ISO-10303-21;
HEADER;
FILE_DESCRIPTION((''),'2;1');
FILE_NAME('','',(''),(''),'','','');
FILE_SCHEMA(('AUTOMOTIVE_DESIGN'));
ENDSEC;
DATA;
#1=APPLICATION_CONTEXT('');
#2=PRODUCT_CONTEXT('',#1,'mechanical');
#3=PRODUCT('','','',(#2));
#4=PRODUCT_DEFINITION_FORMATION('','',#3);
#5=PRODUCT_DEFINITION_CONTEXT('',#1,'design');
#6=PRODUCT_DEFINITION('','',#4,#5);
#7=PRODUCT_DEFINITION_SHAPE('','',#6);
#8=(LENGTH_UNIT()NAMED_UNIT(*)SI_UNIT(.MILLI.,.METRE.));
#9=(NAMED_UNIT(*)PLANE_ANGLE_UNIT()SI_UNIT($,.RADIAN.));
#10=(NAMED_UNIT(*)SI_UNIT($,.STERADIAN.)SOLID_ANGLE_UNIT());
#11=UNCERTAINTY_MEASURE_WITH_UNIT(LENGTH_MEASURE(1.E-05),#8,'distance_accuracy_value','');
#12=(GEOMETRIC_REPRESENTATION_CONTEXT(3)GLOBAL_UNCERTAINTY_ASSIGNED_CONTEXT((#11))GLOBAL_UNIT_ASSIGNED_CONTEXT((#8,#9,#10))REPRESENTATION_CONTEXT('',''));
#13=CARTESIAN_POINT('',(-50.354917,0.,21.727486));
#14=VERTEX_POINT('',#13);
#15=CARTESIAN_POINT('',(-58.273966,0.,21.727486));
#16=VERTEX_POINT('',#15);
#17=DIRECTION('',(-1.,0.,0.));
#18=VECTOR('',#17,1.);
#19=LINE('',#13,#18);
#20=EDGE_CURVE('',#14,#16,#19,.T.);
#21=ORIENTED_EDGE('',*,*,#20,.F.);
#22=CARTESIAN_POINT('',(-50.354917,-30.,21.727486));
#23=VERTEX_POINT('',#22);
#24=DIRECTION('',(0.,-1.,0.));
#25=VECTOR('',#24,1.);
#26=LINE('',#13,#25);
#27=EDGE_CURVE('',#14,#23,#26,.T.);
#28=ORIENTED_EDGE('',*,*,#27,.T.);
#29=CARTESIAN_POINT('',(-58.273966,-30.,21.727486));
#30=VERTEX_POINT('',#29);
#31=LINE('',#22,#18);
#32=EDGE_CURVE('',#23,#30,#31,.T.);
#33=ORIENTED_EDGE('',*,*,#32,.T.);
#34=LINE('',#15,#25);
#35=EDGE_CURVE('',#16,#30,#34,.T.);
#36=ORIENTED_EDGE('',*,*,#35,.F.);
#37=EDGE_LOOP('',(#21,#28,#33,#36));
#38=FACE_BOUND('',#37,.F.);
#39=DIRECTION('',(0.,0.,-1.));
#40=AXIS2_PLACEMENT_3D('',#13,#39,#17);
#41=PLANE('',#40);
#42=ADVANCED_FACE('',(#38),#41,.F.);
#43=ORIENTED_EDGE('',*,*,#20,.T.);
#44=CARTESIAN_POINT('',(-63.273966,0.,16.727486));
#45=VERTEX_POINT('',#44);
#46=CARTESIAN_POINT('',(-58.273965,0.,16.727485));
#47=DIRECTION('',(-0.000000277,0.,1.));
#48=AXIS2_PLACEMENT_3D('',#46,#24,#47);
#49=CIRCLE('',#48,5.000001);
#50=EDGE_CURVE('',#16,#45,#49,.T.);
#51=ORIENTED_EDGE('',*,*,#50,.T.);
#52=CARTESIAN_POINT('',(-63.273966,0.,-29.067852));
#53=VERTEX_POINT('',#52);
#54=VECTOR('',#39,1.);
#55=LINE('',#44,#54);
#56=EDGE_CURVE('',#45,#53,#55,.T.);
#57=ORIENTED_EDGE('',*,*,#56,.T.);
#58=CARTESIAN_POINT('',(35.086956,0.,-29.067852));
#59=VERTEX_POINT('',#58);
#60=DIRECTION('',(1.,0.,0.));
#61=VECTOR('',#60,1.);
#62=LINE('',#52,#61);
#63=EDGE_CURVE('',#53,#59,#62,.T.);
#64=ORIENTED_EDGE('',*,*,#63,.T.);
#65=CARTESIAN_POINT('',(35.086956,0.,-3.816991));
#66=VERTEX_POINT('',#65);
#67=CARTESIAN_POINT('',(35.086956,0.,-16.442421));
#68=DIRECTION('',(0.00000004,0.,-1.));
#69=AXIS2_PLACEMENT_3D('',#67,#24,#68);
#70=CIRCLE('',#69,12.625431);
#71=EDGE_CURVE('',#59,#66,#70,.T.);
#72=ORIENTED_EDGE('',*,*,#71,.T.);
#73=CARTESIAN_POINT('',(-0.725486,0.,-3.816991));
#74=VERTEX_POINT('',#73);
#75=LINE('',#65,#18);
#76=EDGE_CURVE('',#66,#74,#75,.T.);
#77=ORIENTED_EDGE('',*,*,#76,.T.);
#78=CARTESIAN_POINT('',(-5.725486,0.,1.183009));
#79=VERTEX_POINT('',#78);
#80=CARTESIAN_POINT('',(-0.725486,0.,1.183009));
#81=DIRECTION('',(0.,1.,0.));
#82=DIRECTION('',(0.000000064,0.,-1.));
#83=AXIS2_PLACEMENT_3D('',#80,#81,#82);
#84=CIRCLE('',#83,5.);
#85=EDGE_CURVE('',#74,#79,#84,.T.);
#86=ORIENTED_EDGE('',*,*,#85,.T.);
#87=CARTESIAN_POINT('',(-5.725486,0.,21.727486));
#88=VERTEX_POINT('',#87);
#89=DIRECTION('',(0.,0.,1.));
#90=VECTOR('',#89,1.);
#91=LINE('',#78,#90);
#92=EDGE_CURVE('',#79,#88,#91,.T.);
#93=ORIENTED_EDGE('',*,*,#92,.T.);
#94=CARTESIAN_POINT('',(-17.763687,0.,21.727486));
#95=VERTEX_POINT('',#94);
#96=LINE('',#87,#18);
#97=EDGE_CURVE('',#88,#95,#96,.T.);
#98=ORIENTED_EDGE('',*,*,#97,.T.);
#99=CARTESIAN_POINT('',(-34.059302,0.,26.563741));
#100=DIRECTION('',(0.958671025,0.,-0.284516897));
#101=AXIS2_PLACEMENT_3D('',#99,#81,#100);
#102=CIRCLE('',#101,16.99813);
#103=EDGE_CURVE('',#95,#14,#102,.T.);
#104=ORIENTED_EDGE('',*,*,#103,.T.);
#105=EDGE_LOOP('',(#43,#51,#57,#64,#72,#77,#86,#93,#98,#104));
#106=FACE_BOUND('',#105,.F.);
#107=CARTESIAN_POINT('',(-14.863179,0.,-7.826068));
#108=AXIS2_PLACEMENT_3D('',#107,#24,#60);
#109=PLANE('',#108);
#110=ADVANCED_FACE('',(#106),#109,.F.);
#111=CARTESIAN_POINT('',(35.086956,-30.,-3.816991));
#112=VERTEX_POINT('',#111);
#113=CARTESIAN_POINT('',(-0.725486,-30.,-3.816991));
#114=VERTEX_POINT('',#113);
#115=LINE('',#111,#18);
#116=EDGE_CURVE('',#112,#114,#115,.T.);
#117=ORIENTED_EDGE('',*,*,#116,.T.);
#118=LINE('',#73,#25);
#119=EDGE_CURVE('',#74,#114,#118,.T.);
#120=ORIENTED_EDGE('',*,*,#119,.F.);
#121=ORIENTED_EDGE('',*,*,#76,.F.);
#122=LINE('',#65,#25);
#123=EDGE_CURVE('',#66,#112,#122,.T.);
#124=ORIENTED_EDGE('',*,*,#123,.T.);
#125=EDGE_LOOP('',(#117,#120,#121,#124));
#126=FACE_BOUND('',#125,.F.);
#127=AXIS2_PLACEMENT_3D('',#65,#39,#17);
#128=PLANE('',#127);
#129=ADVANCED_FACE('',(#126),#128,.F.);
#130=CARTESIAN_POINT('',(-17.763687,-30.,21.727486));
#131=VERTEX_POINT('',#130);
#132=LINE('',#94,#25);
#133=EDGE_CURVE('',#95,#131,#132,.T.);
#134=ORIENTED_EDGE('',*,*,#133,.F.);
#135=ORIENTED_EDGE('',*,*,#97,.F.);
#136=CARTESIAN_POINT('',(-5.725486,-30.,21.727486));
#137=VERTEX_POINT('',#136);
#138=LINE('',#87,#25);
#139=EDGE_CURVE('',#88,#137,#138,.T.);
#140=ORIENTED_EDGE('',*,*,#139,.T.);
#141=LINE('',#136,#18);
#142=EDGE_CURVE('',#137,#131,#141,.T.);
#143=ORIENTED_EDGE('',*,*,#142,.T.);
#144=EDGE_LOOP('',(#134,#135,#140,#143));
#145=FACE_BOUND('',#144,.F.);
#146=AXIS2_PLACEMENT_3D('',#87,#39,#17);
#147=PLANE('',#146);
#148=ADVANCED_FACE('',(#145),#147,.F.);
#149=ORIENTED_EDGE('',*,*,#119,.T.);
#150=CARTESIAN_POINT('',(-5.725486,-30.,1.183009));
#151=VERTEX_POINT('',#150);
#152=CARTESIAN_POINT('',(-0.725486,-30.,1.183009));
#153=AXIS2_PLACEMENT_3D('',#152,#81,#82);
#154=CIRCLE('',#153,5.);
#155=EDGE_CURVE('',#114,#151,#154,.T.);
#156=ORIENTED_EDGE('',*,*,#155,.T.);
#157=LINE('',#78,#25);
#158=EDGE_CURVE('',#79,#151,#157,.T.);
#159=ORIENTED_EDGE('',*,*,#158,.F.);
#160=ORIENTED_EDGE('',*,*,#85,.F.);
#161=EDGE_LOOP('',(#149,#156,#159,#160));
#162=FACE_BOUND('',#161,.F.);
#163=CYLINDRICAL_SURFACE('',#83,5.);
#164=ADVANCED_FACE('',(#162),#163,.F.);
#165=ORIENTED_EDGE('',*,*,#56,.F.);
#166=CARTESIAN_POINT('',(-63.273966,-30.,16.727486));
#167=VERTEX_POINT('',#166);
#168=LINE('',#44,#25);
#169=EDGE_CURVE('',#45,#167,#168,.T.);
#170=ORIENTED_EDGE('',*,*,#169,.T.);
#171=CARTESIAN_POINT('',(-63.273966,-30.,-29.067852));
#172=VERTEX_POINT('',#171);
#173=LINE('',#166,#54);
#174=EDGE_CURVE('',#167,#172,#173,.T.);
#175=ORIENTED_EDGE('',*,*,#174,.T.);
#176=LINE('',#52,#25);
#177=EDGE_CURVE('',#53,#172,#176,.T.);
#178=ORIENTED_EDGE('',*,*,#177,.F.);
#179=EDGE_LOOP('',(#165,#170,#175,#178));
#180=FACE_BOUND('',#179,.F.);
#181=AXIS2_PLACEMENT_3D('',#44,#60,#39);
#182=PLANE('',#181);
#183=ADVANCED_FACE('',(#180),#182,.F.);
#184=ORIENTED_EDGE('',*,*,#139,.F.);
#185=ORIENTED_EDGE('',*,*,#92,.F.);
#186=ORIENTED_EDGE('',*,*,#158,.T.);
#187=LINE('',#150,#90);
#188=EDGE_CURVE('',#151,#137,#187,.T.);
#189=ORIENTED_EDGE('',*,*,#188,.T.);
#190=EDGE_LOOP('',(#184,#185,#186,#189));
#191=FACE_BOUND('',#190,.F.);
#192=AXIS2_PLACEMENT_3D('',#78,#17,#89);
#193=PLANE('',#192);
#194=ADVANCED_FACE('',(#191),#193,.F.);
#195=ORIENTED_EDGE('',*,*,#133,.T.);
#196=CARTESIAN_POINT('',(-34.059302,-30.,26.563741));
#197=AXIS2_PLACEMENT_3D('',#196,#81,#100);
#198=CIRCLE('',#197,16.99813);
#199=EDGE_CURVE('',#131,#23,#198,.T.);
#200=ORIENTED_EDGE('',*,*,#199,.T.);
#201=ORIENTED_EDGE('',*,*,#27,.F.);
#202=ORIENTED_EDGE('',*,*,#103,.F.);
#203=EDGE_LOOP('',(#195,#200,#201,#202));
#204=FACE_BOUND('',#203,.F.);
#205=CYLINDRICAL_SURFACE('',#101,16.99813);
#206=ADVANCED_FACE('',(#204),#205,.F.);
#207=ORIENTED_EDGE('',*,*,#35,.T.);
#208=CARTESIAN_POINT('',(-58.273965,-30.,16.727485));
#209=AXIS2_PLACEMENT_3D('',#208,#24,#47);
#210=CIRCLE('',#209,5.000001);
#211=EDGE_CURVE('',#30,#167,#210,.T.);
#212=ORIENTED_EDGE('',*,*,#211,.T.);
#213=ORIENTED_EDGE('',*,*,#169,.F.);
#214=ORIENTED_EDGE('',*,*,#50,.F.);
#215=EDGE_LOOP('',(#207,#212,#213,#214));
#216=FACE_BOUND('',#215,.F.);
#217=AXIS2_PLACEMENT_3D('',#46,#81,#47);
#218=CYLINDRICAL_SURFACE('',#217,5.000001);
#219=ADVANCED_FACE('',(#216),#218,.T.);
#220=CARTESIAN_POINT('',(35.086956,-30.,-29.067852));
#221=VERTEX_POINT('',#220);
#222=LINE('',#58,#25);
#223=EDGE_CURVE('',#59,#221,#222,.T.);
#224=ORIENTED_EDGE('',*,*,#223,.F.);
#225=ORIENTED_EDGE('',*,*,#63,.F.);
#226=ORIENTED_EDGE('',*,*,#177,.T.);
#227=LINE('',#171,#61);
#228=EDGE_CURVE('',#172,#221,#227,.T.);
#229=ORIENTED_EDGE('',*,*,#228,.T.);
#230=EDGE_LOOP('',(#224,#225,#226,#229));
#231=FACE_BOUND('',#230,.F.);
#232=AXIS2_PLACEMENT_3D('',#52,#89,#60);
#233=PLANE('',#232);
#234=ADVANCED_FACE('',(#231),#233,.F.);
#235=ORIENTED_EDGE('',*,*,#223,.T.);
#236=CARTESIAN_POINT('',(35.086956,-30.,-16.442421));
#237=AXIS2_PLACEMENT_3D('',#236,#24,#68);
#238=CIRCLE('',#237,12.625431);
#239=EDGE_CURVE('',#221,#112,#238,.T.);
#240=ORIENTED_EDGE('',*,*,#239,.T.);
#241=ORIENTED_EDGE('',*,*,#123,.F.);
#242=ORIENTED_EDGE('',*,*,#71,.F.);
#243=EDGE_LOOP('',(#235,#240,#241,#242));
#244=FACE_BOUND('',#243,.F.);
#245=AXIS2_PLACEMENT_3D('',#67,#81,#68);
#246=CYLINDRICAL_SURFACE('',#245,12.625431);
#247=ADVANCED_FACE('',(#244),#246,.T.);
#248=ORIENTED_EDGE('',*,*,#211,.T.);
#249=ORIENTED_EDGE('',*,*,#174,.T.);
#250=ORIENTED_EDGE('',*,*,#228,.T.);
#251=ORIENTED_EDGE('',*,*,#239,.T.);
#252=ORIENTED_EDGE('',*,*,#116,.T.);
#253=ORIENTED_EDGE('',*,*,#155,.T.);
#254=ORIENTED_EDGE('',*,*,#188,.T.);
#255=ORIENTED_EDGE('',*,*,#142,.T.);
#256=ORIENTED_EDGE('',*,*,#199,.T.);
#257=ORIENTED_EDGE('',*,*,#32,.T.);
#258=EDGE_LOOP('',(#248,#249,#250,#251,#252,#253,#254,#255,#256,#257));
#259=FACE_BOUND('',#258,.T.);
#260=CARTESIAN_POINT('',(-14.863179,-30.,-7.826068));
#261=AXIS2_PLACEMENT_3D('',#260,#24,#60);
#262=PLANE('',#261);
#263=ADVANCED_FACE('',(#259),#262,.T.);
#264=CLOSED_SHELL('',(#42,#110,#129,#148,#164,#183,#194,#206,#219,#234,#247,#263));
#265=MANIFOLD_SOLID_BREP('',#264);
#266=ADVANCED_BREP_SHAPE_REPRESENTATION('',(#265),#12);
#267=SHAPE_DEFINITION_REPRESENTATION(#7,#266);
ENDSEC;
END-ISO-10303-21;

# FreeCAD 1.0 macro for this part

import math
import FreeCAD as App
import Part
import Sketcher

doc = App.newDocument("Part")
body = doc.addObject("PartDesign::Body", "Body")

# Sketch on XZ plane
sketch1 = body.newObject("Sketcher::SketchObject", "Sketch")
sketch1.AttachmentSupport = (doc.getObject("XZ_Plane"), [""])
sketch1.MapMode = "FlatFace"
sketch1.addGeometry([
    Part.LineSegment(App.Vector(-50.354917, 21.727486, 0), App.Vector(-58.273966, 21.727486, 0)),  # 0
    Part.ArcOfCircle(Part.Circle(App.Vector(-58.273965, 16.727485, 0), App.Vector(0, 0, 1), 5.000001), math.radians(90.000016), math.radians(179.999984)),  # 1
    Part.LineSegment(App.Vector(-63.273966, 16.727486, 0), App.Vector(-63.273966, -29.067852, 0)),  # 2
    Part.LineSegment(App.Vector(-63.273966, -29.067852, 0), App.Vector(35.086956, -29.067852, 0)),  # 3
    Part.ArcOfCircle(Part.Circle(App.Vector(35.086956, -16.442421, 0), App.Vector(0, 0, 1), 12.625431), math.radians(-89.999998), math.radians(89.999998)),  # 4
    Part.LineSegment(App.Vector(35.086956, -3.816991, 0), App.Vector(-0.725486, -3.816991, 0)),  # 5
    Part.ArcOfCircle(Part.Circle(App.Vector(-0.725486, 1.183009, 0), App.Vector(0, 0, 1), 5), math.radians(179.999996), math.radians(270.000004)),  # 6
    Part.LineSegment(App.Vector(-5.725486, 1.183009, 0), App.Vector(-5.725486, 21.727486, 0)),  # 7
    Part.LineSegment(App.Vector(-5.725486, 21.727486, 0), App.Vector(-17.763687, 21.727486, 0)),  # 8
    Part.ArcOfCircle(Part.Circle(App.Vector(-34.059302, 26.563741, 0), App.Vector(0, 0, 1), 16.99813), math.radians(-163.470027), math.radians(-16.529973)),  # 9
], False)
sketch1.addConstraint([
    Sketcher.Constraint("Tangent", 0, 2, 1, 1),
    Sketcher.Constraint("Tangent", 1, 2, 2, 1),
    Sketcher.Constraint("Coincident", 2, 2, 3, 1),
    Sketcher.Constraint("Tangent", 3, 2, 4, 1),
    Sketcher.Constraint("Tangent", 4, 2, 5, 1),
    Sketcher.Constraint("Tangent", 5, 2, 6, 2),
    Sketcher.Constraint("Tangent", 6, 1, 7, 1),
    Sketcher.Constraint("Coincident", 7, 2, 8, 1),
    Sketcher.Constraint("Coincident", 8, 2, 9, 2),
    Sketcher.Constraint("Coincident", 9, 1, 0, 1),
    Sketcher.Constraint("Horizontal", 0),
    Sketcher.Constraint("Vertical", 2),
    Sketcher.Constraint("Horizontal", 3),
    Sketcher.Constraint("Horizontal", 5),
    Sketcher.Constraint("Vertical", 7),
    Sketcher.Constraint("Horizontal", 8),
    Sketcher.Constraint("Equal", 1, 6),
    Sketcher.Constraint("Horizontal", 0, 2, 7, 2),
    Sketcher.Constraint("Radius", 1, 5.000001),
    Sketcher.Constraint("Radius", 4, 12.625431),
    Sketcher.Constraint("Radius", 9, 16.99813),
    Sketcher.Constraint("DistanceX", 8, 2, 8, 1, 12.038201),
    Sketcher.Constraint("DistanceX", 0, 2, 0, 1, 7.919049),
    Sketcher.Constraint("DistanceX", 5, 2, 5, 1, 35.812442),
    Sketcher.Constraint("DistanceX", 3, 1, 3, 2, 98.360922),
    Sketcher.Constraint("DistanceY", 2, 2, 2, 1, 45.795338),
    Sketcher.Constraint("DistanceY", 4, 3, -1, 1, 16.442421),
    Sketcher.Constraint("DistanceX", 1, 3, -1, 1, 58.273965),
])
pad1 = body.newObject("PartDesign::Pad", "Pad")
pad1.Profile = sketch1
pad1.Length = 30

doc.recompute()
